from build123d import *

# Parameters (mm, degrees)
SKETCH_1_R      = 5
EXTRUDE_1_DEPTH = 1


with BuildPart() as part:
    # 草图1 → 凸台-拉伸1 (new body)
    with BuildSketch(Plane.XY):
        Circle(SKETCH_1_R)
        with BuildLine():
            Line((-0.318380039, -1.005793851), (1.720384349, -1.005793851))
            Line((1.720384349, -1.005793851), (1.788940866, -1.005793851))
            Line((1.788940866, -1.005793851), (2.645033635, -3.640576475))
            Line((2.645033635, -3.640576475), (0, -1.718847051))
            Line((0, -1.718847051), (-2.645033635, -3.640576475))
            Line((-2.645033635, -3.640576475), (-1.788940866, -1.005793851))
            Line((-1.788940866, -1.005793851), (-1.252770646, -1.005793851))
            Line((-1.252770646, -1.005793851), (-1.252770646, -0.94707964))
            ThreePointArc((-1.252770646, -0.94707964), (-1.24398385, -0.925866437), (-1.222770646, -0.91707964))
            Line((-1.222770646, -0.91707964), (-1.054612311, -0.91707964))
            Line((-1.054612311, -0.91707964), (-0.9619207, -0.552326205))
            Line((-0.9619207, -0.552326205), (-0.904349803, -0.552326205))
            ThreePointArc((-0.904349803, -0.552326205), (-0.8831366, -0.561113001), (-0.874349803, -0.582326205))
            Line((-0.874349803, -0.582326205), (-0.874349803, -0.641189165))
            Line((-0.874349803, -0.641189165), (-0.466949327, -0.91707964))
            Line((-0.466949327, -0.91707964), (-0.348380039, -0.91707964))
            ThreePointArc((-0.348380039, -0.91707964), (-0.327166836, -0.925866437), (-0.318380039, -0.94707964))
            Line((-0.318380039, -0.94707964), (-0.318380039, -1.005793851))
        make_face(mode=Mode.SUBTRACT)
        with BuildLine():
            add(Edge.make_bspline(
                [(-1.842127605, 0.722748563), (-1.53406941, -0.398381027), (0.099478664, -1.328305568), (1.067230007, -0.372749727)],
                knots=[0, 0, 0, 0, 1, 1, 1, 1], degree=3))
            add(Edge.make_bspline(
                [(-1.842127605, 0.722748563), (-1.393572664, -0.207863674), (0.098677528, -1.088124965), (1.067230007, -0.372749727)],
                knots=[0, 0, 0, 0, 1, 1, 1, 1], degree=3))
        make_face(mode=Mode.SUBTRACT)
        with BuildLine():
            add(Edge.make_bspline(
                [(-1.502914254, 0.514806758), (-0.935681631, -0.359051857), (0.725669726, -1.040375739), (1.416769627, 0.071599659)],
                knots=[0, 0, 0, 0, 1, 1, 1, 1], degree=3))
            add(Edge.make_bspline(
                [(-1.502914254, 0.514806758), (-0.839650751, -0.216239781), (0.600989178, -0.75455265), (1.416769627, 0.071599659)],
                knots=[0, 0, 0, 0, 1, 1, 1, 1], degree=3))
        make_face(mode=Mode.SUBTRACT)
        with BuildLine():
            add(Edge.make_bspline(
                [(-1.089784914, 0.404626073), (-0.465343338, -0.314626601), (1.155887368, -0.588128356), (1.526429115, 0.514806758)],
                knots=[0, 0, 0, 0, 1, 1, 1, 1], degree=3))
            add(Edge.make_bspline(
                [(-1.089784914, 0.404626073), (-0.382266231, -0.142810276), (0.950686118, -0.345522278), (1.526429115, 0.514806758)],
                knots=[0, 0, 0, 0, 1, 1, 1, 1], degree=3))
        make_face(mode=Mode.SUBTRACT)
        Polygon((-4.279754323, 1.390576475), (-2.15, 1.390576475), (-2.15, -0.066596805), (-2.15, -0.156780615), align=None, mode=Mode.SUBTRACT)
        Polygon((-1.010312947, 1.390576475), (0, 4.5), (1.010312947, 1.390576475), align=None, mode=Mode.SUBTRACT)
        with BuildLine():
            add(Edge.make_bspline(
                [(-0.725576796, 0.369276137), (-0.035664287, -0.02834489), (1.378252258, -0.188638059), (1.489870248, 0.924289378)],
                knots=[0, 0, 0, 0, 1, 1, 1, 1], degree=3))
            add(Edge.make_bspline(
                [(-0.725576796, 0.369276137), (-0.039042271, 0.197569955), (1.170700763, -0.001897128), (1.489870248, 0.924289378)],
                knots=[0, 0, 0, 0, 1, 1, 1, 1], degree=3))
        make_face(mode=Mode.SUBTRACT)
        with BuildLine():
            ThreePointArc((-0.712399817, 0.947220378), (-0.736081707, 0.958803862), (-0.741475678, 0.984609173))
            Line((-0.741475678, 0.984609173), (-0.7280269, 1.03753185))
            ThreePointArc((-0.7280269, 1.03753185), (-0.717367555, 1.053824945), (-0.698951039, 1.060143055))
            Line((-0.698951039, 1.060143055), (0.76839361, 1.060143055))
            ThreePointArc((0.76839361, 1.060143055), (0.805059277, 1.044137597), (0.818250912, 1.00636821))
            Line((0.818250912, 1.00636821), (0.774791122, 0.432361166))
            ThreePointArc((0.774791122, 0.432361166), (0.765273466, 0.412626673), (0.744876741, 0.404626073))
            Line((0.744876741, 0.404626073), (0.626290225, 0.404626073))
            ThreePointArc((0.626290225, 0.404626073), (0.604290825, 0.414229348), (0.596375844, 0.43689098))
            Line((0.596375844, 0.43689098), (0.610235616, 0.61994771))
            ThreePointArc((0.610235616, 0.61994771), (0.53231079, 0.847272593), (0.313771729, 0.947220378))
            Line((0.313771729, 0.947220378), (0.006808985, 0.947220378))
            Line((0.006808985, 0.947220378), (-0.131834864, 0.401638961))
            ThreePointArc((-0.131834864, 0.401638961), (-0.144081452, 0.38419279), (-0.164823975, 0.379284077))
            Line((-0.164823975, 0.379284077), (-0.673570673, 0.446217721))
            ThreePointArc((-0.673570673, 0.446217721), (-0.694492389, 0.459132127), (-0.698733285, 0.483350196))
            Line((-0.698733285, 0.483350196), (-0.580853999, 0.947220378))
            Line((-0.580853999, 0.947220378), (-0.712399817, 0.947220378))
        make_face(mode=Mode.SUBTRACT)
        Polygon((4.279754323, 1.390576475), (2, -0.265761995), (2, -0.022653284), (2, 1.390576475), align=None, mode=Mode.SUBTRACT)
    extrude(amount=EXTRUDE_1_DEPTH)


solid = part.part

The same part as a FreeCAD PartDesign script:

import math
import FreeCAD as App
import Part
import Sketcher

doc = App.newDocument("Part")
body = doc.addObject("PartDesign::Body", "Body")

# Sketch on XY plane
sketch1 = doc.addObject("Sketcher::SketchObject", "Sketch")
body.addObject(sketch1)
sketch1.AttachmentSupport = (doc.XY_Plane, [""])
sketch1.MapMode = "FlatFace"
sketch1.addGeometry([
    Part.Circle(App.Vector(0, 0, 0), App.Vector(0, 0, 1), 5),  # 0
    Part.LineSegment(App.Vector(-0.31838, -0.94708, 0), App.Vector(-0.31838, -1.005794, 0)),  # 1
    Part.LineSegment(App.Vector(-0.31838, -1.005794, 0), App.Vector(1.788941, -1.005794, 0)),  # 2
    Part.LineSegment(App.Vector(1.788941, -1.005794, 0), App.Vector(2.645034, -3.640576, 0)),  # 3
    Part.LineSegment(App.Vector(2.645034, -3.640576, 0), App.Vector(0, -1.718847, 0)),  # 4
    Part.LineSegment(App.Vector(0, -1.718847, 0), App.Vector(-2.645034, -3.640576, 0)),  # 5
    Part.LineSegment(App.Vector(-2.645034, -3.640576, 0), App.Vector(-1.788941, -1.005794, 0)),  # 6
    Part.LineSegment(App.Vector(-1.788941, -1.005794, 0), App.Vector(-1.252771, -1.005794, 0)),  # 7
    Part.LineSegment(App.Vector(-1.252771, -1.005794, 0), App.Vector(-1.252771, -0.94708, 0)),  # 8
    Part.ArcOfCircle(Part.Circle(App.Vector(-1.222771, -0.94708, 0), App.Vector(0, 0, 1), 0.03), math.radians(90), math.radians(180)),  # 9
    Part.LineSegment(App.Vector(-1.222771, -0.91708, 0), App.Vector(-1.054612, -0.91708, 0)),  # 10
    Part.LineSegment(App.Vector(-1.054612, -0.91708, 0), App.Vector(-0.961921, -0.552326, 0)),  # 11
    Part.LineSegment(App.Vector(-0.961921, -0.552326, 0), App.Vector(-0.90435, -0.552326, 0)),  # 12
    Part.ArcOfCircle(Part.Circle(App.Vector(-0.90435, -0.582326, 0), App.Vector(0, 0, 1), 0.03), math.radians(0), math.radians(90)),  # 13
    Part.LineSegment(App.Vector(-0.87435, -0.582326, 0), App.Vector(-0.87435, -0.641189, 0)),  # 14
    Part.LineSegment(App.Vector(-0.87435, -0.641189, 0), App.Vector(-0.466949, -0.91708, 0)),  # 15
    Part.LineSegment(App.Vector(-0.466949, -0.91708, 0), App.Vector(-0.34838, -0.91708, 0)),  # 16
    Part.ArcOfCircle(Part.Circle(App.Vector(-0.34838, -0.94708, 0), App.Vector(0, 0, 1), 0.03), math.radians(0.000002), math.radians(89.999998)),  # 17
    Part.BSplineCurve([App.Vector(-1.842128, 0.722749, 0), App.Vector(-1.534069, -0.398381, 0), App.Vector(0.099479, -1.328306, 0), App.Vector(1.06723, -0.37275, 0)], [4, 4], [0, 1], False, 3, [1, 1, 1, 1], False),  # 18
    Part.BSplineCurve([App.Vector(-1.842128, 0.722749, 0), App.Vector(-1.393573, -0.207864, 0), App.Vector(0.098678, -1.088125, 0), App.Vector(1.06723, -0.37275, 0)], [4, 4], [0, 1], False, 3, [1, 1, 1, 1], False),  # 19
    Part.BSplineCurve([App.Vector(-1.502914, 0.514807, 0), App.Vector(-0.935682, -0.359052, 0), App.Vector(0.72567, -1.040376, 0), App.Vector(1.41677, 0.0716, 0)], [4, 4], [0, 1], False, 3, [1, 1, 1, 1], False),  # 20
    Part.BSplineCurve([App.Vector(-1.502914, 0.514807, 0), App.Vector(-0.839651, -0.21624, 0), App.Vector(0.600989, -0.754553, 0), App.Vector(1.41677, 0.0716, 0)], [4, 4], [0, 1], False, 3, [1, 1, 1, 1], False),  # 21
    Part.BSplineCurve([App.Vector(-1.089785, 0.404626, 0), App.Vector(-0.465343, -0.314627, 0), App.Vector(1.155887, -0.588128, 0), App.Vector(1.526429, 0.514807, 0)], [4, 4], [0, 1], False, 3, [1, 1, 1, 1], False),  # 22
    Part.BSplineCurve([App.Vector(-1.089785, 0.404626, 0), App.Vector(-0.382266, -0.14281, 0), App.Vector(0.950686, -0.345522, 0), App.Vector(1.526429, 0.514807, 0)], [4, 4], [0, 1], False, 3, [1, 1, 1, 1], False),  # 23
    Part.BSplineCurve([App.Vector(-0.725577, 0.369276, 0), App.Vector(-0.035664, -0.028345, 0), App.Vector(1.378252, -0.188638, 0), App.Vector(1.48987, 0.924289, 0)], [4, 4], [0, 1], False, 3, [1, 1, 1, 1], False),  # 24
    Part.BSplineCurve([App.Vector(-0.725577, 0.369276, 0), App.Vector(-0.039042, 0.19757, 0), App.Vector(1.170701, -0.001897, 0), App.Vector(1.48987, 0.924289, 0)], [4, 4], [0, 1], False, 3, [1, 1, 1, 1], False),  # 25
    Part.LineSegment(App.Vector(-2.15, -0.156781, 0), App.Vector(-4.279754, 1.390576, 0)),  # 26
    Part.LineSegment(App.Vector(-4.279754, 1.390576, 0), App.Vector(-2.15, 1.390576, 0)),  # 27
    Part.LineSegment(App.Vector(-2.15, 1.390576, 0), App.Vector(-2.15, -0.156781, 0)),  # 28
    Part.LineSegment(App.Vector(1.010313, 1.390576, 0), App.Vector(-1.010313, 1.390576, 0)),  # 29
    Part.LineSegment(App.Vector(-1.010313, 1.390576, 0), App.Vector(0, 4.5, 0)),  # 30
    Part.LineSegment(App.Vector(0, 4.5, 0), App.Vector(1.010313, 1.390576, 0)),  # 31
    Part.LineSegment(App.Vector(-0.580854, 0.94722, 0), App.Vector(-0.7124, 0.94722, 0)),  # 32
    Part.ArcOfCircle(Part.Circle(App.Vector(-0.7124, 0.97722, 0), App.Vector(0, 0, 1), 0.03), math.radians(165.741732), math.radians(269.999998)),  # 33
    Part.LineSegment(App.Vector(-0.741476, 0.984609, 0), App.Vector(-0.728027, 1.037532, 0)),  # 34
    Part.ArcOfCircle(Part.Circle(App.Vector(-0.698951, 1.030143, 0), App.Vector(0, 0, 1), 0.03), math.radians(90.000002), math.radians(165.74173)),  # 35
    Part.LineSegment(App.Vector(-0.698951, 1.060143, 0), App.Vector(0.768394, 1.060143, 0)),  # 36
    Part.ArcOfCircle(Part.Circle(App.Vector(0.768394, 1.010143, 0), App.Vector(0, 0, 1), 0.05), math.radians(-4.329774), math.radians(90)),  # 37
    Part.LineSegment(App.Vector(0.818251, 1.006368, 0), App.Vector(0.774791, 0.432361, 0)),  # 38
    Part.ArcOfCircle(Part.Circle(App.Vector(0.744877, 0.434626, 0), App.Vector(0, 0, 1), 0.03), math.radians(-90), math.radians(-4.329774)),  # 39
    Part.LineSegment(App.Vector(0.744877, 0.404626, 0), App.Vector(0.62629, 0.404626, 0)),  # 40
    Part.ArcOfCircle(Part.Circle(App.Vector(0.62629, 0.434626, 0), App.Vector(0, 0, 1), 0.03), math.radians(175.670226), math.radians(270)),  # 41
    Part.LineSegment(App.Vector(0.596376, 0.436891, 0), App.Vector(0.610236, 0.619948, 0)),  # 42
    Part.ArcOfCircle(Part.Circle(App.Vector(0.306729, 0.642927, 0), App.Vector(0, 0, 1), 0.304375), math.radians(-4.329774), math.radians(88.674246)),  # 43
    Part.LineSegment(App.Vector(0.313772, 0.94722, 0), App.Vector(0.006809, 0.94722, 0)),  # 44
    Part.LineSegment(App.Vector(0.006809, 0.94722, 0), App.Vector(-0.131835, 0.401639, 0)),  # 45
    Part.ArcOfCircle(Part.Circle(App.Vector(-0.160911, 0.409028, 0), App.Vector(0, 0, 1), 0.03), math.radians(-97.495115), math.radians(-14.258271)),  # 46
    Part.LineSegment(App.Vector(-0.164824, 0.379284, 0), App.Vector(-0.673571, 0.446218, 0)),  # 47
    Part.ArcOfCircle(Part.Circle(App.Vector(-0.669657, 0.475961, 0), App.Vector(0, 0, 1), 0.03), math.radians(165.741734), math.radians(262.504883)),  # 48
    Part.LineSegment(App.Vector(-0.698733, 0.48335, 0), App.Vector(-0.580854, 0.94722, 0)),  # 49
    Part.LineSegment(App.Vector(2, 1.390576, 0), App.Vector(4.279754, 1.390576, 0)),  # 50
    Part.LineSegment(App.Vector(4.279754, 1.390576, 0), App.Vector(2, -0.265762, 0)),  # 51
    Part.LineSegment(App.Vector(2, -0.265762, 0), App.Vector(2, 1.390576, 0)),  # 52
], False)
sketch1.addConstraint([
    Sketcher.Constraint("Block", 18),
    Sketcher.Constraint("Block", 19),
    Sketcher.Constraint("Block", 20),
    Sketcher.Constraint("Block", 21),
    Sketcher.Constraint("Block", 22),
    Sketcher.Constraint("Block", 23),
    Sketcher.Constraint("Block", 24),
    Sketcher.Constraint("Block", 25),
    Sketcher.Constraint("Coincident", 1, 2, 2, 1),
    Sketcher.Constraint("Coincident", 2, 2, 3, 1),
    Sketcher.Constraint("Coincident", 3, 2, 4, 1),
    Sketcher.Constraint("Coincident", 4, 2, 5, 1),
    Sketcher.Constraint("Coincident", 5, 2, 6, 1),
    Sketcher.Constraint("Coincident", 6, 2, 7, 1),
    Sketcher.Constraint("Coincident", 7, 2, 8, 1),
    Sketcher.Constraint("Coincident", 8, 2, 9, 2),
    Sketcher.Constraint("Coincident", 9, 1, 10, 1),
    Sketcher.Constraint("Coincident", 10, 2, 11, 1),
    Sketcher.Constraint("Coincident", 11, 2, 12, 1),
    Sketcher.Constraint("Coincident", 12, 2, 13, 2),
    Sketcher.Constraint("Coincident", 13, 1, 14, 1),
    Sketcher.Constraint("Coincident", 14, 2, 15, 1),
    Sketcher.Constraint("Coincident", 15, 2, 16, 1),
    Sketcher.Constraint("Coincident", 16, 2, 17, 2),
    Sketcher.Constraint("Coincident", 17, 1, 1, 1),
    Sketcher.Constraint("Coincident", 26, 2, 27, 1),
    Sketcher.Constraint("Coincident", 27, 2, 28, 1),
    Sketcher.Constraint("Coincident", 28, 2, 26, 1),
    Sketcher.Constraint("Coincident", 29, 2, 30, 1),
    Sketcher.Constraint("Coincident", 30, 2, 31, 1),
    Sketcher.Constraint("Coincident", 31, 2, 29, 1),
    Sketcher.Constraint("Coincident", 32, 2, 33, 2),
    Sketcher.Constraint("Coincident", 33, 1, 34, 1),
    Sketcher.Constraint("Coincident", 34, 2, 35, 2),
    Sketcher.Constraint("Coincident", 35, 1, 36, 1),
    Sketcher.Constraint("Coincident", 36, 2, 37, 2),
    Sketcher.Constraint("Coincident", 37, 1, 38, 1),
    Sketcher.Constraint("Coincident", 38, 2, 39, 2),
    Sketcher.Constraint("Coincident", 39, 1, 40, 1),
    Sketcher.Constraint("Coincident", 40, 2, 41, 2),
    Sketcher.Constraint("Coincident", 41, 1, 42, 1),
    Sketcher.Constraint("Coincident", 42, 2, 43, 1),
    Sketcher.Constraint("Coincident", 43, 2, 44, 1),
    Sketcher.Constraint("Coincident", 44, 2, 45, 1),
    Sketcher.Constraint("Coincident", 45, 2, 46, 2),
    Sketcher.Constraint("Coincident", 46, 1, 47, 1),
    Sketcher.Constraint("Coincident", 47, 2, 48, 2),
    Sketcher.Constraint("Coincident", 48, 1, 49, 1),
    Sketcher.Constraint("Coincident", 49, 2, 32, 1),
    Sketcher.Constraint("Coincident", 50, 2, 51, 1),
    Sketcher.Constraint("Coincident", 51, 2, 52, 1),
    Sketcher.Constraint("Coincident", 52, 2, 50, 1),
    Sketcher.Constraint("Vertical", 1),
    Sketcher.Constraint("Horizontal", 2),
    Sketcher.Constraint("Horizontal", 7),
    Sketcher.Constraint("Vertical", 8),
    Sketcher.Constraint("Horizontal", 10),
    Sketcher.Constraint("Horizontal", 12),
    Sketcher.Constraint("Vertical", 14),
    Sketcher.Constraint("Horizontal", 16),
    Sketcher.Constraint("Horizontal", 27),
    Sketcher.Constraint("Vertical", 28),
    Sketcher.Constraint("Horizontal", 29),
    Sketcher.Constraint("Horizontal", 32),
    Sketcher.Constraint("Horizontal", 36),
    Sketcher.Constraint("Horizontal", 40),
    Sketcher.Constraint("Horizontal", 44),
    Sketcher.Constraint("Horizontal", 50),
    Sketcher.Constraint("Vertical", 52),
    Sketcher.Constraint("Coincident", 0, 3, -1, 1),
    Sketcher.Constraint("PointOnObject", 4, 2, -2),
    Sketcher.Constraint("PointOnObject", 30, 2, -2),
    Sketcher.Constraint("Diameter", 0, 10.0),
    Sketcher.Constraint("Radius", 9, 0.03),
    Sketcher.Constraint("Radius", 13, 0.03),
    Sketcher.Constraint("Radius", 17, 0.03),
    Sketcher.Constraint("Radius", 33, 0.03),
    Sketcher.Constraint("Radius", 35, 0.03),
    Sketcher.Constraint("Radius", 37, 0.05),
    Sketcher.Constraint("Radius", 39, 0.03),
    Sketcher.Constraint("Radius", 41, 0.03),
    Sketcher.Constraint("Radius", 46, 0.03),
    Sketcher.Constraint("Radius", 48, 0.03),
    Sketcher.Constraint("DistanceX", -1, 1, 51, 2, 2.0),
    Sketcher.Constraint("DistanceY", -1, 1, 30, 2, 4.5),
    Sketcher.Constraint("DistanceX", 27, 2, -1, 1, 2.15),
    Sketcher.Constraint("DistanceX", 8, 2, 9, 1, 0.03),
    Sketcher.Constraint("DistanceY", 8, 2, 9, 1, 0.03),
    Sketcher.Constraint("DistanceX", 12, 2, 13, 1, 0.03),
    Sketcher.Constraint("DistanceY", 13, 1, 12, 2, 0.03),
    Sketcher.Constraint("DistanceX", 16, 2, 1, 2, 0.03),
    Sketcher.Constraint("DistanceY", 17, 1, 16, 2, 0.03),
    Sketcher.Constraint("Radius", 43, 0.304375),
    Sketcher.Constraint("DistanceX", 2, 1, 2, 2, 2.107321),
    Sketcher.Constraint("DistanceX", 7, 1, 7, 2, 0.53617),
    Sketcher.Constraint("DistanceX", 10, 1, 10, 2, 0.168158),
    Sketcher.Constraint("DistanceX", 12, 1, 12, 2, 0.057571),
    Sketcher.Constraint("DistanceX", 16, 1, 16, 2, 0.118569),
    Sketcher.Constraint("DistanceY", 52, 1, 52, 2, 1.656338),
    Sketcher.Constraint("DistanceX", 33, 3, -1, 1, 0.7124),
    Sketcher.Constraint("DistanceX", 32, 2, -1, 1, 0.7124),
    Sketcher.Constraint("DistanceY", 17, 3, 33, 3, 1.9243),
    Sketcher.Constraint("DistanceY", 9, 3, 33, 3, 1.9243),
    Sketcher.Constraint("DistanceX", 13, 3, 35, 3, 0.205399),
    Sketcher.Constraint("DistanceY", 41, 3, 43, 3, 0.208301),
    Sketcher.Constraint("DistanceY", 46, 3, 43, 3, 0.233899),
    Sketcher.Constraint("DistanceX", 46, 3, 41, 3, 0.787201),
    Sketcher.Constraint("DistanceX", 14, 2, 15, 2, 0.4074),
    Sketcher.Constraint("DistanceY", 8, 2, 28, 2, 0.790299),
    Sketcher.Constraint("DistanceX", 41, 3, 38, 2, 0.148501),
    Sketcher.Constraint("DistanceX", 40, 2, 38, 2, 0.148501),
    Sketcher.Constraint("DistanceX", 41, 1, 39, 1, 0.148501),
    Sketcher.Constraint("Distance", 4, 3.269441),
    Sketcher.Constraint("Distance", 5, 3.269441),
    Sketcher.Constraint("Distance", 26, 2.632521),
    Sketcher.Constraint("Distance", 30, 3.269441),
    Sketcher.Constraint("Distance", 31, 3.269441),
    Sketcher.Constraint("Distance", 38, 0.57565),
    Sketcher.Constraint("Distance", 42, 0.183581),
    Sketcher.Constraint("Distance", 47, 0.513131),
    Sketcher.Constraint("Distance", 51, 2.817931),
    Sketcher.Constraint("DistanceX", 27, 1, 27, 2, 2.129754),
    Sketcher.Constraint("DistanceX", 29, 2, 29, 1, 2.020626),
    Sketcher.Constraint("DistanceX", 32, 2, 32, 1, 0.131546),
    Sketcher.Constraint("DistanceX", 36, 1, 36, 2, 1.467345),
    Sketcher.Constraint("DistanceX", 44, 2, 44, 1, 0.306963),
    Sketcher.Constraint("DistanceY", 1, 2, 1, 1, 0.058714),
    Sketcher.Constraint("DistanceY", 8, 1, 8, 2, 0.058714),
    Sketcher.Constraint("DistanceY", 14, 2, 14, 1, 0.058863),
    Sketcher.Constraint("DistanceX", 9, 3, -1, 1, 1.222771),
    Sketcher.Constraint("DistanceY", 9, 3, -1, 1, 0.94708),
    Sketcher.Constraint("DistanceX", 13, 3, -1, 1, 0.90435),
    Sketcher.Constraint("DistanceX", -1, 1, 41, 3, 0.62629),
    Sketcher.Constraint("DistanceX", -1, 1, 43, 3, 0.306729),
    Sketcher.Constraint("DistanceY", -1, 1, 48, 3, 0.475961),
    Sketcher.Constraint("DistanceY", 14, 2, -1, 1, 0.641189),
    Sketcher.Constraint("DistanceY", -1, 1, 33, 1, 0.984609),
    Sketcher.Constraint("DistanceY", -1, 1, 34, 2, 1.037532),
    Sketcher.Constraint("DistanceX", 35, 1, -1, 1, 0.698951),
    Sketcher.Constraint("DistanceX", -1, 1, 37, 1, 0.818251),
    Sketcher.Constraint("DistanceY", -1, 1, 37, 1, 1.006368),
    Sketcher.Constraint("DistanceY", -1, 1, 41, 1, 0.436891),
    Sketcher.Constraint("DistanceX", -1, 1, 43, 2, 0.313772),
    Sketcher.Constraint("DistanceY", -1, 1, 43, 2, 0.94722),
    Sketcher.Constraint("DistanceY", -1, 1, 45, 2, 0.401639),
    Sketcher.Constraint("DistanceX", 47, 2, -1, 1, 0.673571),
    Sketcher.Constraint("DistanceY", -1, 1, 48, 1, 0.48335),
    Sketcher.Constraint("DistanceY", 51, 2, -1, 1, 0.265762),
    Sketcher.Constraint("DistanceY", 13, 3, 35, 3, 1.612469),
    Sketcher.Constraint("DistanceY", 4, 2, 13, 3, 1.136521),
    Sketcher.Constraint("DistanceY", 5, 2, 4, 2, 1.921729),
    Sketcher.Constraint("DistanceX", 33, 1, 48, 3, 0.071818),
    Sketcher.Constraint("Distance", 3, 2.770374),
])
pad1 = doc.addObject("PartDesign::Pad", "Pad")
body.addObject(pad1)
pad1.Profile = sketch1
pad1.Length = 1

doc.recompute()
